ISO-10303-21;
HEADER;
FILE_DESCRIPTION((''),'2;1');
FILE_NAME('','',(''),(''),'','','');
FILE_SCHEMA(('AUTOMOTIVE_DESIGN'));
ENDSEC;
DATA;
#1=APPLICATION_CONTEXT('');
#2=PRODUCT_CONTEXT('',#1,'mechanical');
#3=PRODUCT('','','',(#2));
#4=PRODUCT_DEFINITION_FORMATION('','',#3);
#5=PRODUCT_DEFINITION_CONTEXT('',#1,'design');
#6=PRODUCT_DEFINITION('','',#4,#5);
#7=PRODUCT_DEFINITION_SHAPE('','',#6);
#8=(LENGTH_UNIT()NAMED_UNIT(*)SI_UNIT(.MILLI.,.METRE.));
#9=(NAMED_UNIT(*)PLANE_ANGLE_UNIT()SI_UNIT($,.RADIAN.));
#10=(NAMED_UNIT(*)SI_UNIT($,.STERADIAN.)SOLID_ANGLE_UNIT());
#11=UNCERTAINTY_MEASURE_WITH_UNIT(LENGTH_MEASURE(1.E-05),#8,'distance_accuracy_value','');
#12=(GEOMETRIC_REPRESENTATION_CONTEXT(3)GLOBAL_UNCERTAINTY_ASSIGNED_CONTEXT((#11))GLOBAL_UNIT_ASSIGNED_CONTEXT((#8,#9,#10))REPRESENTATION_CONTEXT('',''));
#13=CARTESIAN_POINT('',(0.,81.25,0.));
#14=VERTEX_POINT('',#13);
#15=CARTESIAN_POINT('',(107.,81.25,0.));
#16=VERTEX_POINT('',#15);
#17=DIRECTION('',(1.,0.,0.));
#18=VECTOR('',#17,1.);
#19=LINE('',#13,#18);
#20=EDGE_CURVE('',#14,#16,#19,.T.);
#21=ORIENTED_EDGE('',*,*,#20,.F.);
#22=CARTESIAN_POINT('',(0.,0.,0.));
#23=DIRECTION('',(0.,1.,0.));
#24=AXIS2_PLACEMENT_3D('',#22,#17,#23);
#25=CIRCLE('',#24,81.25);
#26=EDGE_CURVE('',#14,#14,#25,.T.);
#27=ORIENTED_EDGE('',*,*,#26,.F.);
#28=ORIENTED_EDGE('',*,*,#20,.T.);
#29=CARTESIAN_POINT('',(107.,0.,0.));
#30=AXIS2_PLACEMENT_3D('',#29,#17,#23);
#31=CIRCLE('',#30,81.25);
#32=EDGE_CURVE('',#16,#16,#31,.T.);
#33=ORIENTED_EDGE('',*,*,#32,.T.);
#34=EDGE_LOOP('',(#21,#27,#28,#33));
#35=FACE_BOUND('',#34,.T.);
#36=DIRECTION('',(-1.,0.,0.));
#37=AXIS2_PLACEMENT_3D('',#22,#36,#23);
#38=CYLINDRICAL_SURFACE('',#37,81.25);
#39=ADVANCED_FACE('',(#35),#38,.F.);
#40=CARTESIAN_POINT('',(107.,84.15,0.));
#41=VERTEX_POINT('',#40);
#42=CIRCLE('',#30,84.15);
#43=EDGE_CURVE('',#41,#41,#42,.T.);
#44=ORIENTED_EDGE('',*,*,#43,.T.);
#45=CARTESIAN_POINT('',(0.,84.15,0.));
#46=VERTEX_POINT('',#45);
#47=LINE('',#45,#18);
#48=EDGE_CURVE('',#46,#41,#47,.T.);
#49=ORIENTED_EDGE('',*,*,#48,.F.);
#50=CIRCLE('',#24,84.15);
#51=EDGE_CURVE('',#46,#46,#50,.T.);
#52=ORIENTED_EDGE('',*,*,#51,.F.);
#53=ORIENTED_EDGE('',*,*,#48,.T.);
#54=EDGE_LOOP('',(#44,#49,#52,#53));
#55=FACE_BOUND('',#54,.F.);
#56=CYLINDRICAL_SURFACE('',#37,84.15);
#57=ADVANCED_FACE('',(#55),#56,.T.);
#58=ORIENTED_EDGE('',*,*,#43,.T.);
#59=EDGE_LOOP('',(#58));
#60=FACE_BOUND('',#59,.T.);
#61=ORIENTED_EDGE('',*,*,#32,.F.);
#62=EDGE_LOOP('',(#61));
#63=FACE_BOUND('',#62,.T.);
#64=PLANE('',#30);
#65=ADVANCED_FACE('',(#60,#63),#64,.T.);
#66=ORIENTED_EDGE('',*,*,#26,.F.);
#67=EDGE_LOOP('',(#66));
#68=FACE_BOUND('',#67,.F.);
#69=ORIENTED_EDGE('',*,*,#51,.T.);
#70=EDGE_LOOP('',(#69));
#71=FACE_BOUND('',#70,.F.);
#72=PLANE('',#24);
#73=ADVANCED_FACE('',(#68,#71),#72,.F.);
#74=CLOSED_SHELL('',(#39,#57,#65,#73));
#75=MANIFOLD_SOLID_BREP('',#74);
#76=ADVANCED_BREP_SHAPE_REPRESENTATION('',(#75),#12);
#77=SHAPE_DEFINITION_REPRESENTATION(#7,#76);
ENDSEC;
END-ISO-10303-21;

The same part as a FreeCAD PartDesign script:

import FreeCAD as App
import Part
import Sketcher

doc = App.newDocument("Part")
body = doc.addObject("PartDesign::Body", "Body")

# Sketch on YZ plane
sketch1 = doc.addObject("Sketcher::SketchObject", "Sketch")
body.addObject(sketch1)
sketch1.AttachmentSupport = (doc.YZ_Plane, [""])
sketch1.MapMode = "FlatFace"
sketch1.addGeometry([
    Part.Circle(App.Vector(0, 0, 0), App.Vector(0, 0, 1), 84),
    Part.Circle(App.Vector(0, 0, 0), App.Vector(0, 0, 1), 81),
], False)
sketch1.addConstraint([
    Sketcher.Constraint("Coincident", 0, 3, -1, 1),
    Sketcher.Constraint("Coincident", 1, 3, -1, 1),
    Sketcher.Constraint("Diameter", 0, 168.3),
    Sketcher.Constraint("Diameter", 1, 162.5),
])
pad1 = doc.addObject("PartDesign::Pad", "Pad")
body.addObject(pad1)
pad1.Profile = sketch1
pad1.Length = 107

doc.recompute()
